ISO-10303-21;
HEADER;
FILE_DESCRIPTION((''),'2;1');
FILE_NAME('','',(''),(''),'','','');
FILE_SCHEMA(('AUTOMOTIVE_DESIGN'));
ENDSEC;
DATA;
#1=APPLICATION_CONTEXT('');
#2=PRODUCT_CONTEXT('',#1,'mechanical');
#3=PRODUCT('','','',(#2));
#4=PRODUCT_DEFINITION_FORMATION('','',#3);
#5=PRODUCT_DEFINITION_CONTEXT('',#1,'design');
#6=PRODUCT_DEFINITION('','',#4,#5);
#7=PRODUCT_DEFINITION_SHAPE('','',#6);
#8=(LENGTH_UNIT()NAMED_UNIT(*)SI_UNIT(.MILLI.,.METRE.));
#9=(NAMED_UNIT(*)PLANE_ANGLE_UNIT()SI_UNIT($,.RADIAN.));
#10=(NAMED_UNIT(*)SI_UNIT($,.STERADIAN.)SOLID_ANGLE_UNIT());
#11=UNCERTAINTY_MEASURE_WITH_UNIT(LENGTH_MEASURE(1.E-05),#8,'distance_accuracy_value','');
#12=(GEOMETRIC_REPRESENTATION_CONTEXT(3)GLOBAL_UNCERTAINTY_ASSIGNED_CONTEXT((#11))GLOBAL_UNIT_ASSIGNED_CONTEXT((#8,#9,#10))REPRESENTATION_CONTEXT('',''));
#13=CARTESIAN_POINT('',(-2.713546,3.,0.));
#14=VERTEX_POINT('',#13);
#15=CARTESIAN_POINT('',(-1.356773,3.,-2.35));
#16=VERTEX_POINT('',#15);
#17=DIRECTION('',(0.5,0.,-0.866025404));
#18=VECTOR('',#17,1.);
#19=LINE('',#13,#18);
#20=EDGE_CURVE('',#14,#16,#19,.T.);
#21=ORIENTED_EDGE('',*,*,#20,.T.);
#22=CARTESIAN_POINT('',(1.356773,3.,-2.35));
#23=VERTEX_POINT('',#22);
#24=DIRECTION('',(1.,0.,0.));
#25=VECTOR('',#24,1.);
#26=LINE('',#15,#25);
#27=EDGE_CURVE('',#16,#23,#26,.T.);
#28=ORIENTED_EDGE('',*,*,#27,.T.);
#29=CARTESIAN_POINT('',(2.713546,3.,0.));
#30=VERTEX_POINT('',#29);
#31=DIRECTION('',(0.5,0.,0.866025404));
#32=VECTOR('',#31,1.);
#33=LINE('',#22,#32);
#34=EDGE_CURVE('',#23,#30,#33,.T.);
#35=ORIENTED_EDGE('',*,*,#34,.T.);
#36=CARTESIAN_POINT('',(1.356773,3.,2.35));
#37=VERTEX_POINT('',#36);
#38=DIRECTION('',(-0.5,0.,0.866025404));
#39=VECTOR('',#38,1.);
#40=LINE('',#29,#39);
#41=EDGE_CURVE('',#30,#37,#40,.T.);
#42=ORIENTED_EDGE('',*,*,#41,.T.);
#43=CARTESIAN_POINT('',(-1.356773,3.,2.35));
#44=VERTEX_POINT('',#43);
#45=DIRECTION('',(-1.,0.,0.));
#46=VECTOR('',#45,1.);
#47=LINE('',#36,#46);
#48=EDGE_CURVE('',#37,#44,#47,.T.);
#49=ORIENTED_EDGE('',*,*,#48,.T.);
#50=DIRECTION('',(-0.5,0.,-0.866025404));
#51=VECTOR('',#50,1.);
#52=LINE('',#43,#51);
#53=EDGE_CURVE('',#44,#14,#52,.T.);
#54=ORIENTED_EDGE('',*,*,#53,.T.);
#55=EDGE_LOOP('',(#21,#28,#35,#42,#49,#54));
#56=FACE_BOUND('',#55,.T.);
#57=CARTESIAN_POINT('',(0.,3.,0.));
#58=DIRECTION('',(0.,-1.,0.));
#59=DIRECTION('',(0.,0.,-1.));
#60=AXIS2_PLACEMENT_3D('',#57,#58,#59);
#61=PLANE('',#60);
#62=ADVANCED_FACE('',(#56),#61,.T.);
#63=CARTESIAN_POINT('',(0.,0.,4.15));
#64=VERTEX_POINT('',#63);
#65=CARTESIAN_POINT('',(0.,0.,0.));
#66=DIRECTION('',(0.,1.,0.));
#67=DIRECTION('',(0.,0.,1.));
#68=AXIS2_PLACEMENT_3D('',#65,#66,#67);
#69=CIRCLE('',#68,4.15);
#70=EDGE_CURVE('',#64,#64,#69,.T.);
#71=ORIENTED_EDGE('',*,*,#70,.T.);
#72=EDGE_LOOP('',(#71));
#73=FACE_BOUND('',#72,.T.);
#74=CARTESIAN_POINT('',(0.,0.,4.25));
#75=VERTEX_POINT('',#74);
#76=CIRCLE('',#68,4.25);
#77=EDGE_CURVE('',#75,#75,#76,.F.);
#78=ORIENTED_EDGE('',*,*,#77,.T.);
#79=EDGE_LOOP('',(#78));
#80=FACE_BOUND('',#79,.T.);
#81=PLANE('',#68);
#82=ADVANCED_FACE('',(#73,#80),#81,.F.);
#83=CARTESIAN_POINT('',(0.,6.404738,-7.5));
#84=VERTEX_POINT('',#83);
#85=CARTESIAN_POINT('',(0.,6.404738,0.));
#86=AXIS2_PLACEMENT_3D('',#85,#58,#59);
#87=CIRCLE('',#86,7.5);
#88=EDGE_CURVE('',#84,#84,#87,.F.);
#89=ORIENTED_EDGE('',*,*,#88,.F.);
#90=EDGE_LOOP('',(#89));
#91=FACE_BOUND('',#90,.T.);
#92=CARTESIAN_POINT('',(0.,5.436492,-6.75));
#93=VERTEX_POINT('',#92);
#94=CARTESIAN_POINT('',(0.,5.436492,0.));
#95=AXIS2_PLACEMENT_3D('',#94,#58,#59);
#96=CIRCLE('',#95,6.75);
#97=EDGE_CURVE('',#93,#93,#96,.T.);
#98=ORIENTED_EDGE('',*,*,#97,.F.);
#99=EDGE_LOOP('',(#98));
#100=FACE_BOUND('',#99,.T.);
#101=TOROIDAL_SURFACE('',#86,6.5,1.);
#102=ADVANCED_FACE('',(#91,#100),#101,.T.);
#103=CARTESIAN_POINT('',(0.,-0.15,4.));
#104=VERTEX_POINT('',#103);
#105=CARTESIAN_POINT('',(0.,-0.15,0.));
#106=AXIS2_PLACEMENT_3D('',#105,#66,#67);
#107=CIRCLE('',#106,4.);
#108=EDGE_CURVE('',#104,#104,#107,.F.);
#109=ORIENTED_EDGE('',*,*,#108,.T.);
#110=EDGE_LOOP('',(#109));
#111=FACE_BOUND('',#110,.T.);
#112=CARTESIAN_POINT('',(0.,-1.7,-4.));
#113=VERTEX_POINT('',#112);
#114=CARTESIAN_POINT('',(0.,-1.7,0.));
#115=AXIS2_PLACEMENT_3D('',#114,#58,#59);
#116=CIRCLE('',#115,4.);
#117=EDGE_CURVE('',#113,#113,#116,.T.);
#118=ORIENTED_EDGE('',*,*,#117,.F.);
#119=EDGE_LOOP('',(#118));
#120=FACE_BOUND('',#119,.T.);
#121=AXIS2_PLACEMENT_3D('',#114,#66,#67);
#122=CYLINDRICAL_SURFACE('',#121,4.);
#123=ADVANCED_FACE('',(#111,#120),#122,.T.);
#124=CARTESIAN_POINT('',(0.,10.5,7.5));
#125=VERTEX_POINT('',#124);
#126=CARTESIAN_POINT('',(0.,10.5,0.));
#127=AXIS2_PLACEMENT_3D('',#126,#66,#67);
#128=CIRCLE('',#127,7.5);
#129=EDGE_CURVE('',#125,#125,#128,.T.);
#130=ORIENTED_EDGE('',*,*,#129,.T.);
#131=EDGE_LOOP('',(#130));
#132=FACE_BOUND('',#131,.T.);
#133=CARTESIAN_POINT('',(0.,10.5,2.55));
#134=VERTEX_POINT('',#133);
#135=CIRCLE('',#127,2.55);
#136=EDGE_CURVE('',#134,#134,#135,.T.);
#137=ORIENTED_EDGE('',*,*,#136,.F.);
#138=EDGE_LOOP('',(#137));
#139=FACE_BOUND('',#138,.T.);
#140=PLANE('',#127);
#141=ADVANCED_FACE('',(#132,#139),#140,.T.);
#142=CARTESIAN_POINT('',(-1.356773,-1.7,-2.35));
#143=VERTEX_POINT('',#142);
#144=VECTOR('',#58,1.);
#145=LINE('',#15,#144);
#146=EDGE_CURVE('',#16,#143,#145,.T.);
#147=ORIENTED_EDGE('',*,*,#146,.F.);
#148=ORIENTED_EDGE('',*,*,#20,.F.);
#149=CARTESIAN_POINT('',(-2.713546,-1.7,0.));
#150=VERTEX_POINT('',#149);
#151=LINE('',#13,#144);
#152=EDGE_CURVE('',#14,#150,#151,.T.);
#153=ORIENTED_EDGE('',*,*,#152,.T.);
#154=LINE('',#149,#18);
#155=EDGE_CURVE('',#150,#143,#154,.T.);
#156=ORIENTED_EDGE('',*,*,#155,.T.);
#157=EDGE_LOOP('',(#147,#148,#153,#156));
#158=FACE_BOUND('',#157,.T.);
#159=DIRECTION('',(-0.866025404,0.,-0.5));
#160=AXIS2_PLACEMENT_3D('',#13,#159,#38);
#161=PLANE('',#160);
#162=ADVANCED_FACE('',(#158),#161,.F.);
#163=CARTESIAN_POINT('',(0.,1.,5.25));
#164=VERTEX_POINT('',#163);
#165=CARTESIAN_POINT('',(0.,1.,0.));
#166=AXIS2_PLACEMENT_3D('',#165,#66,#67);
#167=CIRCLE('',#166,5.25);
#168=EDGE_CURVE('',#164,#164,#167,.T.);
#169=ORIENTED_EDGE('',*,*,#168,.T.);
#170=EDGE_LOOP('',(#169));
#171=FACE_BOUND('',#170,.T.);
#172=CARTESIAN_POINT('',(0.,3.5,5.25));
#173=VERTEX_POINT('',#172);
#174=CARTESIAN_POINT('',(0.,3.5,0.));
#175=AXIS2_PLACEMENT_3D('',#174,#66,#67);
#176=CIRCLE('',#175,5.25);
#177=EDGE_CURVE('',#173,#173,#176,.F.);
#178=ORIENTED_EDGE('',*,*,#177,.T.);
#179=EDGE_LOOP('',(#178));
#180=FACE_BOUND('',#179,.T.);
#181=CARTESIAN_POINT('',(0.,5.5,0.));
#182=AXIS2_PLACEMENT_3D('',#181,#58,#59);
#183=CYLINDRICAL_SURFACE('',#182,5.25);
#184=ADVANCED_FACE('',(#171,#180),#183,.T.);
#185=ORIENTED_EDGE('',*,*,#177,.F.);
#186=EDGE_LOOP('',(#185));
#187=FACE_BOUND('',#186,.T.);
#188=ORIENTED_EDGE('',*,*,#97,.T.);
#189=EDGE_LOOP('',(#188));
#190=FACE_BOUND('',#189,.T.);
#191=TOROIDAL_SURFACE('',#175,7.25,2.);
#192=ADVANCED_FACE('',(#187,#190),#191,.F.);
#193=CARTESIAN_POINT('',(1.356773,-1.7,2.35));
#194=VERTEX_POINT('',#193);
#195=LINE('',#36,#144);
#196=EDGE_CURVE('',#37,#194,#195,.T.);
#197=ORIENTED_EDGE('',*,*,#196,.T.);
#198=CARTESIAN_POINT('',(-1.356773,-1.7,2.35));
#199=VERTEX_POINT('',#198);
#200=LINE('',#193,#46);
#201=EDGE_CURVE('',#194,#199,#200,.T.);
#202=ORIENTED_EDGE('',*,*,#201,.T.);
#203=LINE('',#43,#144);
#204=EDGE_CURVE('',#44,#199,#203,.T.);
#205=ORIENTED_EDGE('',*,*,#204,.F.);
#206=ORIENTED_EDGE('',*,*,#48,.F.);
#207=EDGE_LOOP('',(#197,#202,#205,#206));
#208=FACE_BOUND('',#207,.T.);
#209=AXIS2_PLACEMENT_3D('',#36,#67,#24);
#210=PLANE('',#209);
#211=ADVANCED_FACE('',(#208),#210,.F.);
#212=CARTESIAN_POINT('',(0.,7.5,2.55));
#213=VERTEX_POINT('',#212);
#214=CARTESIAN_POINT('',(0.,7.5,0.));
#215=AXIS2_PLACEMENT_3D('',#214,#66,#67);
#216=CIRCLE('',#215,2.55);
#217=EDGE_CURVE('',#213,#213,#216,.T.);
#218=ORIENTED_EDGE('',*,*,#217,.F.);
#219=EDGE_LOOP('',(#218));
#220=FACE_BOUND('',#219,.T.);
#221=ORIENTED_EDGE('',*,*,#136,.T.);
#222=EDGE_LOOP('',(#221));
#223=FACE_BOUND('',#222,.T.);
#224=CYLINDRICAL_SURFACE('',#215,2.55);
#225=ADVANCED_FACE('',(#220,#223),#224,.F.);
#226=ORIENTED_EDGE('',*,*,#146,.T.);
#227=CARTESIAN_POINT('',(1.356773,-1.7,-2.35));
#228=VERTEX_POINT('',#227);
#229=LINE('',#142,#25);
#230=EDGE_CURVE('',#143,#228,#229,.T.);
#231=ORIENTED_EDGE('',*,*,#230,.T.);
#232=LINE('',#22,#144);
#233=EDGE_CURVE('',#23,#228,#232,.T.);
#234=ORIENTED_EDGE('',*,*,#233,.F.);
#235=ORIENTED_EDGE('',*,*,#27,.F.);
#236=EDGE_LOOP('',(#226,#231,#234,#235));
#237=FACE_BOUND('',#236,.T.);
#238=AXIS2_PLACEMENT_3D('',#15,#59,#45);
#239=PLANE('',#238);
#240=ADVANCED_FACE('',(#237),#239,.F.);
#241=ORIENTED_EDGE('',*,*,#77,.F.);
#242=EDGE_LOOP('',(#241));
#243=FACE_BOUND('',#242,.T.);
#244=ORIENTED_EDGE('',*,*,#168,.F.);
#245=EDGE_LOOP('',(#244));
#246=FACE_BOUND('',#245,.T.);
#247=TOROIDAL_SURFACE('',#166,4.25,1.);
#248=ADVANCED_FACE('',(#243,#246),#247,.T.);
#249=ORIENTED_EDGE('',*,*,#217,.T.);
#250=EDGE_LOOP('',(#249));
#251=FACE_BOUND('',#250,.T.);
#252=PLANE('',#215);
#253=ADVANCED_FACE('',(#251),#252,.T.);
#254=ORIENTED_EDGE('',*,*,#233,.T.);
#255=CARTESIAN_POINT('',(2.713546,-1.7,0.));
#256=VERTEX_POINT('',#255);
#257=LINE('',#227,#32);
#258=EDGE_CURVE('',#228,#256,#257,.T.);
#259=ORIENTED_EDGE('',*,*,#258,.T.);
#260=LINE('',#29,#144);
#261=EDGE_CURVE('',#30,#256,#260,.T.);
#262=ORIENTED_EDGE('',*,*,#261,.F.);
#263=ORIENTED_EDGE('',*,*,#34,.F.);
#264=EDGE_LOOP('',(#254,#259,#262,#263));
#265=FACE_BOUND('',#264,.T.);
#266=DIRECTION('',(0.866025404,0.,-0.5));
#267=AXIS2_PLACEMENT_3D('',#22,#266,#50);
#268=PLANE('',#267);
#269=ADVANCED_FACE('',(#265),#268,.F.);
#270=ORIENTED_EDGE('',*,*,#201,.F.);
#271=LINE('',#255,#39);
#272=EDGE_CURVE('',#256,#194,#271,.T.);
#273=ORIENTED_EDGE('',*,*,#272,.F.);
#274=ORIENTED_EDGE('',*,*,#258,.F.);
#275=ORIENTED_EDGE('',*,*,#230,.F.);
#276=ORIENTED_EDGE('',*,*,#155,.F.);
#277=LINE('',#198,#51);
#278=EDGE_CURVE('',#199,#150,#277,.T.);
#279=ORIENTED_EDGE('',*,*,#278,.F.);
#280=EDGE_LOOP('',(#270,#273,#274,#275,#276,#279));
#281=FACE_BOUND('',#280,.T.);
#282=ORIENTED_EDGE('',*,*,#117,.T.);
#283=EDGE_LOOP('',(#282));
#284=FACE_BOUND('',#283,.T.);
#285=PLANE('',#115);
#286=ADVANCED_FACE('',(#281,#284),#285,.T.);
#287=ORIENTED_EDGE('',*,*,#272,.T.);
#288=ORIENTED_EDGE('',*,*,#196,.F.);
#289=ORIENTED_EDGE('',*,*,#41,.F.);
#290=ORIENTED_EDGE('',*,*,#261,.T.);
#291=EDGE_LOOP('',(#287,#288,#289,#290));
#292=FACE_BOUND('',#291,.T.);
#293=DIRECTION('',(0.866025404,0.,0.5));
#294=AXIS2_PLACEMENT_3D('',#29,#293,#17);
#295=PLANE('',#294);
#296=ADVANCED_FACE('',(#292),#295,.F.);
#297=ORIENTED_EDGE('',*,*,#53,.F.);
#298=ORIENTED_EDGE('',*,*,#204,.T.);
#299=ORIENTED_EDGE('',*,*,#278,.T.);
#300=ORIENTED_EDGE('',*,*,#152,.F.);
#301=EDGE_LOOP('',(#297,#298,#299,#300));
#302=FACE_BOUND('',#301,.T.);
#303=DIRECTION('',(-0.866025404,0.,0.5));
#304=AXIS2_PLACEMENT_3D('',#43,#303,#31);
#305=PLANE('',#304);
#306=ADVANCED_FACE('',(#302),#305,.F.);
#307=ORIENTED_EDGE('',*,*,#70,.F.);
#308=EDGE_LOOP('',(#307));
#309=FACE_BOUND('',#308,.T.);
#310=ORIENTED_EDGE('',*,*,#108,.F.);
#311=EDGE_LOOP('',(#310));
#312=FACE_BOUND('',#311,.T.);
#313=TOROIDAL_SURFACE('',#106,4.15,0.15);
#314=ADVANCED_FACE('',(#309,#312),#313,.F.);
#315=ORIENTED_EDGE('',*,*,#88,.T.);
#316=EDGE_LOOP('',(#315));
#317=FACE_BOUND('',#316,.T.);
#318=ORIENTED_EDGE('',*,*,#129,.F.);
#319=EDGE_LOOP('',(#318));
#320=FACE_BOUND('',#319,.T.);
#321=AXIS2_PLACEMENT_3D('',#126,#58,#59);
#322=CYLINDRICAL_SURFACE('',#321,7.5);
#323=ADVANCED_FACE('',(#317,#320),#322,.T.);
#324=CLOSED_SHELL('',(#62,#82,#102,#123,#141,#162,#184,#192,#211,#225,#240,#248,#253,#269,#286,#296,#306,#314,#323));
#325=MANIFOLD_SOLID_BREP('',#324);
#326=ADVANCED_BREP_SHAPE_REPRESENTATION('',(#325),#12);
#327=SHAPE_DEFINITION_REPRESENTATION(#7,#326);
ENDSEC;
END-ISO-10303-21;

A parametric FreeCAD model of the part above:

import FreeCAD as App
import Part
import Sketcher

V = App.Vector
Q = App.Units.Quantity


def edges_at(feature, points):
    """Names of the edges that pass closest to the given points."""
    edges = feature.Shape.Edges
    near = lambda p: min(range(len(edges)), key=lambda i: edges[i].distToShape(Part.Vertex(*p))[0])
    return sorted({f"Edge{near(p) + 1}" for p in points})

doc = App.newDocument("Part")
params = doc.addObject("Spreadsheet::Sheet", "Params")
for row, (alias, value) in enumerate([
    ("sketch1_diameter", "10.5 mm"),
    ("pad1_length", "5.5 mm"),
    ("sketch2_diameter", "8 mm"),
    ("pad2_length", "1.7 mm"),
    ("fillet_radius", "0.15 mm"),
    ("sketch3_diameter", "15 mm"),
    ("pad3_length", "5 mm"),
    ("sketch4_diameter", "5.1 mm"),
    ("pocket1_length", "3 mm"),
    ("pocket2_length", "4.7 mm"),
    ("fillet2_radius", "2 mm"),
    ("fillet3_radius", "1 mm"),
    ("fillet4_radius", "1 mm"),
], start=1):
    params.set(f"A{row}", alias)
    params.set(f"B{row}", "=" + value)
    params.setAlias(f"B{row}", alias)

body = doc.addObject("PartDesign::Body", "Body")

# Sketch on XZ plane
sketch1 = doc.addObject("Sketcher::SketchObject", "Sketch")
body.addObject(sketch1)
sketch1.AttachmentSupport = (doc.XZ_Plane, [""])
sketch1.MapMode = "FlatFace"
sketch1.addGeometry(Part.Circle(V(0, 0, 0), V(0, 0, 1), 5), False)
sketch1.addConstraint(Sketcher.Constraint("Coincident", 0, 3, -1, 1))
sketch1.addConstraint(Sketcher.Constraint("Diameter", 0, Q("10.5 mm")))
sketch1.setExpression("Constraints[1]", "Params.sketch1_diameter")
pad1 = doc.addObject("PartDesign::Pad", "Pad")
body.addObject(pad1)
pad1.Profile = sketch1
pad1.setExpression("Length", "Params.pad1_length")
pad1.Reversed = True

# Sketch on XZ plane
sketch2 = doc.addObject("Sketcher::SketchObject", "Sketch001")
body.addObject(sketch2)
sketch2.AttachmentSupport = (doc.XZ_Plane, [""])
sketch2.MapMode = "FlatFace"
sketch2.addGeometry(Part.Circle(V(0, 0, 0), V(0, 0, 1), 4), False)
sketch2.addConstraint(Sketcher.Constraint("Coincident", 0, 3, -1, 1))
sketch2.addConstraint(Sketcher.Constraint("Diameter", 0, Q("8 mm")))
sketch2.setExpression("Constraints[1]", "Params.sketch2_diameter")
pad2 = doc.addObject("PartDesign::Pad", "Pad001")
body.addObject(pad2)
pad2.Profile = sketch2
pad2.setExpression("Length", "Params.pad2_length")
doc.recompute()

fillet = doc.addObject("PartDesign::Fillet", "Fillet")
body.addObject(fillet)
fillet.Base = (pad2, edges_at(pad2, [(0, 0, 4)]))
fillet.setExpression("Radius", "Params.fillet_radius")

# Sketch on XZ plane
sketch3 = doc.addObject("Sketcher::SketchObject", "Sketch002")
body.addObject(sketch3)
sketch3.AttachmentSupport = (doc.XZ_Plane, [""])
sketch3.MapMode = "FlatFace"
sketch3.AttachmentOffset = App.Placement(V(0, 0, -5.5), App.Rotation())
sketch3.addGeometry(Part.Circle(V(0, 0, 0), V(0, 0, 1), 8), False)
sketch3.addConstraint(Sketcher.Constraint("Coincident", 0, 3, -1, 1))
sketch3.addConstraint(Sketcher.Constraint("Diameter", 0, Q("15 mm")))
sketch3.setExpression("Constraints[1]", "Params.sketch3_diameter")
pad3 = doc.addObject("PartDesign::Pad", "Pad002")
body.addObject(pad3)
pad3.Profile = sketch3
pad3.setExpression("Length", "Params.pad3_length")
pad3.Reversed = True

# Sketch on XZ plane
sketch4 = doc.addObject("Sketcher::SketchObject", "Sketch003")
body.addObject(sketch4)
sketch4.AttachmentSupport = (doc.XZ_Plane, [""])
sketch4.MapMode = "FlatFace"
sketch4.AttachmentOffset = App.Placement(V(0, 0, -10.5), App.Rotation())
sketch4.addGeometry(Part.Circle(V(0, 0, 0), V(0, 0, 1), 2.5), False)
sketch4.addConstraint(Sketcher.Constraint("Coincident", 0, 3, -1, 1))
sketch4.addConstraint(Sketcher.Constraint("Diameter", 0, Q("5.1 mm")))
sketch4.setExpression("Constraints[1]", "Params.sketch4_diameter")
pocket1 = doc.addObject("PartDesign::Pocket", "Pocket")
body.addObject(pocket1)
pocket1.Profile = sketch4
pocket1.setExpression("Length", "Params.pocket1_length")
pocket1.Reversed = True

# Sketch on XZ plane
sketch5 = doc.addObject("Sketcher::SketchObject", "Sketch004")
body.addObject(sketch5)
sketch5.AttachmentSupport = (doc.XZ_Plane, [""])
sketch5.MapMode = "FlatFace"
sketch5.AttachmentOffset = App.Placement(V(0, 0, 1.7), App.Rotation())
sketch5.addGeometry(Part.LineSegment(V(2.7, 0, 0), V(1.4, 2.4, 0)), False)
sketch5.addGeometry(Part.LineSegment(V(1.4, 2.4, 0), V(-1.4, 2.4, 0)), False)
sketch5.addGeometry(Part.LineSegment(V(-1.4, 2.4, 0), V(-2.7, 0, 0)), False)
sketch5.addGeometry(Part.LineSegment(V(-2.7, 0, 0), V(-1.4, -2.4, 0)), False)
sketch5.addGeometry(Part.LineSegment(V(-1.4, -2.4, 0), V(1.4, -2.4, 0)), False)
sketch5.addGeometry(Part.LineSegment(V(1.4, -2.4, 0), V(2.7, 0, 0)), False)
sketch5.addConstraint(Sketcher.Constraint("Coincident", 0, 2, 1, 1))
sketch5.addConstraint(Sketcher.Constraint("Coincident", 1, 2, 2, 1))
sketch5.addConstraint(Sketcher.Constraint("Coincident", 2, 2, 3, 1))
sketch5.addConstraint(Sketcher.Constraint("Coincident", 3, 2, 4, 1))
sketch5.addConstraint(Sketcher.Constraint("Coincident", 4, 2, 5, 1))
sketch5.addConstraint(Sketcher.Constraint("Coincident", 5, 2, 0, 1))
sketch5.addConstraint(Sketcher.Constraint("Horizontal", 1))
sketch5.addConstraint(Sketcher.Constraint("Horizontal", 4))
sketch5.addConstraint(Sketcher.Constraint("Symmetric", 0, 2, 3, 2, -1, 1))
sketch5.addConstraint(Sketcher.Constraint("Symmetric", 2, 2, 5, 2, -1, 1))
sketch5.addConstraint(Sketcher.Constraint("PointOnObject", 2, 2, -1))
sketch5.addConstraint(Sketcher.Constraint("Parallel", 2, 5))
sketch5.addConstraint(Sketcher.Constraint("Vertical", 1, 2, 3, 2))
sketch5.addConstraint(Sketcher.Constraint("Angle", 0, Q("120 deg")))
sketch5.addConstraint(Sketcher.Constraint("DistanceY", 3, 2, 1, 2, Q("4.7 mm")))
sketch5.addConstraint(Sketcher.Constraint("DistanceX", 1, 2, 1, 1, Q("2.713546 mm")))
pocket2 = doc.addObject("PartDesign::Pocket", "Pocket001")
body.addObject(pocket2)
pocket2.Profile = sketch5
pocket2.setExpression("Length", "Params.pocket2_length")
doc.recompute()

fillet2 = doc.addObject("PartDesign::Fillet", "Fillet001")
body.addObject(fillet2)
fillet2.Base = (pocket2, edges_at(pocket2, [(0, 5.5, -5.25)]))
fillet2.setExpression("Radius", "Params.fillet2_radius")
doc.recompute()

fillet3 = doc.addObject("PartDesign::Fillet", "Fillet002")
body.addObject(fillet3)
fillet3.Base = (fillet2, edges_at(fillet2, [(0, 0, -5.25)]))
fillet3.setExpression("Radius", "Params.fillet3_radius")
doc.recompute()

fillet4 = doc.addObject("PartDesign::Fillet", "Fillet003")
body.addObject(fillet4)
fillet4.Base = (fillet3, edges_at(fillet3, [(0, 5.5, -7.5)]))
fillet4.setExpression("Radius", "Params.fillet4_radius")

doc.recompute()
